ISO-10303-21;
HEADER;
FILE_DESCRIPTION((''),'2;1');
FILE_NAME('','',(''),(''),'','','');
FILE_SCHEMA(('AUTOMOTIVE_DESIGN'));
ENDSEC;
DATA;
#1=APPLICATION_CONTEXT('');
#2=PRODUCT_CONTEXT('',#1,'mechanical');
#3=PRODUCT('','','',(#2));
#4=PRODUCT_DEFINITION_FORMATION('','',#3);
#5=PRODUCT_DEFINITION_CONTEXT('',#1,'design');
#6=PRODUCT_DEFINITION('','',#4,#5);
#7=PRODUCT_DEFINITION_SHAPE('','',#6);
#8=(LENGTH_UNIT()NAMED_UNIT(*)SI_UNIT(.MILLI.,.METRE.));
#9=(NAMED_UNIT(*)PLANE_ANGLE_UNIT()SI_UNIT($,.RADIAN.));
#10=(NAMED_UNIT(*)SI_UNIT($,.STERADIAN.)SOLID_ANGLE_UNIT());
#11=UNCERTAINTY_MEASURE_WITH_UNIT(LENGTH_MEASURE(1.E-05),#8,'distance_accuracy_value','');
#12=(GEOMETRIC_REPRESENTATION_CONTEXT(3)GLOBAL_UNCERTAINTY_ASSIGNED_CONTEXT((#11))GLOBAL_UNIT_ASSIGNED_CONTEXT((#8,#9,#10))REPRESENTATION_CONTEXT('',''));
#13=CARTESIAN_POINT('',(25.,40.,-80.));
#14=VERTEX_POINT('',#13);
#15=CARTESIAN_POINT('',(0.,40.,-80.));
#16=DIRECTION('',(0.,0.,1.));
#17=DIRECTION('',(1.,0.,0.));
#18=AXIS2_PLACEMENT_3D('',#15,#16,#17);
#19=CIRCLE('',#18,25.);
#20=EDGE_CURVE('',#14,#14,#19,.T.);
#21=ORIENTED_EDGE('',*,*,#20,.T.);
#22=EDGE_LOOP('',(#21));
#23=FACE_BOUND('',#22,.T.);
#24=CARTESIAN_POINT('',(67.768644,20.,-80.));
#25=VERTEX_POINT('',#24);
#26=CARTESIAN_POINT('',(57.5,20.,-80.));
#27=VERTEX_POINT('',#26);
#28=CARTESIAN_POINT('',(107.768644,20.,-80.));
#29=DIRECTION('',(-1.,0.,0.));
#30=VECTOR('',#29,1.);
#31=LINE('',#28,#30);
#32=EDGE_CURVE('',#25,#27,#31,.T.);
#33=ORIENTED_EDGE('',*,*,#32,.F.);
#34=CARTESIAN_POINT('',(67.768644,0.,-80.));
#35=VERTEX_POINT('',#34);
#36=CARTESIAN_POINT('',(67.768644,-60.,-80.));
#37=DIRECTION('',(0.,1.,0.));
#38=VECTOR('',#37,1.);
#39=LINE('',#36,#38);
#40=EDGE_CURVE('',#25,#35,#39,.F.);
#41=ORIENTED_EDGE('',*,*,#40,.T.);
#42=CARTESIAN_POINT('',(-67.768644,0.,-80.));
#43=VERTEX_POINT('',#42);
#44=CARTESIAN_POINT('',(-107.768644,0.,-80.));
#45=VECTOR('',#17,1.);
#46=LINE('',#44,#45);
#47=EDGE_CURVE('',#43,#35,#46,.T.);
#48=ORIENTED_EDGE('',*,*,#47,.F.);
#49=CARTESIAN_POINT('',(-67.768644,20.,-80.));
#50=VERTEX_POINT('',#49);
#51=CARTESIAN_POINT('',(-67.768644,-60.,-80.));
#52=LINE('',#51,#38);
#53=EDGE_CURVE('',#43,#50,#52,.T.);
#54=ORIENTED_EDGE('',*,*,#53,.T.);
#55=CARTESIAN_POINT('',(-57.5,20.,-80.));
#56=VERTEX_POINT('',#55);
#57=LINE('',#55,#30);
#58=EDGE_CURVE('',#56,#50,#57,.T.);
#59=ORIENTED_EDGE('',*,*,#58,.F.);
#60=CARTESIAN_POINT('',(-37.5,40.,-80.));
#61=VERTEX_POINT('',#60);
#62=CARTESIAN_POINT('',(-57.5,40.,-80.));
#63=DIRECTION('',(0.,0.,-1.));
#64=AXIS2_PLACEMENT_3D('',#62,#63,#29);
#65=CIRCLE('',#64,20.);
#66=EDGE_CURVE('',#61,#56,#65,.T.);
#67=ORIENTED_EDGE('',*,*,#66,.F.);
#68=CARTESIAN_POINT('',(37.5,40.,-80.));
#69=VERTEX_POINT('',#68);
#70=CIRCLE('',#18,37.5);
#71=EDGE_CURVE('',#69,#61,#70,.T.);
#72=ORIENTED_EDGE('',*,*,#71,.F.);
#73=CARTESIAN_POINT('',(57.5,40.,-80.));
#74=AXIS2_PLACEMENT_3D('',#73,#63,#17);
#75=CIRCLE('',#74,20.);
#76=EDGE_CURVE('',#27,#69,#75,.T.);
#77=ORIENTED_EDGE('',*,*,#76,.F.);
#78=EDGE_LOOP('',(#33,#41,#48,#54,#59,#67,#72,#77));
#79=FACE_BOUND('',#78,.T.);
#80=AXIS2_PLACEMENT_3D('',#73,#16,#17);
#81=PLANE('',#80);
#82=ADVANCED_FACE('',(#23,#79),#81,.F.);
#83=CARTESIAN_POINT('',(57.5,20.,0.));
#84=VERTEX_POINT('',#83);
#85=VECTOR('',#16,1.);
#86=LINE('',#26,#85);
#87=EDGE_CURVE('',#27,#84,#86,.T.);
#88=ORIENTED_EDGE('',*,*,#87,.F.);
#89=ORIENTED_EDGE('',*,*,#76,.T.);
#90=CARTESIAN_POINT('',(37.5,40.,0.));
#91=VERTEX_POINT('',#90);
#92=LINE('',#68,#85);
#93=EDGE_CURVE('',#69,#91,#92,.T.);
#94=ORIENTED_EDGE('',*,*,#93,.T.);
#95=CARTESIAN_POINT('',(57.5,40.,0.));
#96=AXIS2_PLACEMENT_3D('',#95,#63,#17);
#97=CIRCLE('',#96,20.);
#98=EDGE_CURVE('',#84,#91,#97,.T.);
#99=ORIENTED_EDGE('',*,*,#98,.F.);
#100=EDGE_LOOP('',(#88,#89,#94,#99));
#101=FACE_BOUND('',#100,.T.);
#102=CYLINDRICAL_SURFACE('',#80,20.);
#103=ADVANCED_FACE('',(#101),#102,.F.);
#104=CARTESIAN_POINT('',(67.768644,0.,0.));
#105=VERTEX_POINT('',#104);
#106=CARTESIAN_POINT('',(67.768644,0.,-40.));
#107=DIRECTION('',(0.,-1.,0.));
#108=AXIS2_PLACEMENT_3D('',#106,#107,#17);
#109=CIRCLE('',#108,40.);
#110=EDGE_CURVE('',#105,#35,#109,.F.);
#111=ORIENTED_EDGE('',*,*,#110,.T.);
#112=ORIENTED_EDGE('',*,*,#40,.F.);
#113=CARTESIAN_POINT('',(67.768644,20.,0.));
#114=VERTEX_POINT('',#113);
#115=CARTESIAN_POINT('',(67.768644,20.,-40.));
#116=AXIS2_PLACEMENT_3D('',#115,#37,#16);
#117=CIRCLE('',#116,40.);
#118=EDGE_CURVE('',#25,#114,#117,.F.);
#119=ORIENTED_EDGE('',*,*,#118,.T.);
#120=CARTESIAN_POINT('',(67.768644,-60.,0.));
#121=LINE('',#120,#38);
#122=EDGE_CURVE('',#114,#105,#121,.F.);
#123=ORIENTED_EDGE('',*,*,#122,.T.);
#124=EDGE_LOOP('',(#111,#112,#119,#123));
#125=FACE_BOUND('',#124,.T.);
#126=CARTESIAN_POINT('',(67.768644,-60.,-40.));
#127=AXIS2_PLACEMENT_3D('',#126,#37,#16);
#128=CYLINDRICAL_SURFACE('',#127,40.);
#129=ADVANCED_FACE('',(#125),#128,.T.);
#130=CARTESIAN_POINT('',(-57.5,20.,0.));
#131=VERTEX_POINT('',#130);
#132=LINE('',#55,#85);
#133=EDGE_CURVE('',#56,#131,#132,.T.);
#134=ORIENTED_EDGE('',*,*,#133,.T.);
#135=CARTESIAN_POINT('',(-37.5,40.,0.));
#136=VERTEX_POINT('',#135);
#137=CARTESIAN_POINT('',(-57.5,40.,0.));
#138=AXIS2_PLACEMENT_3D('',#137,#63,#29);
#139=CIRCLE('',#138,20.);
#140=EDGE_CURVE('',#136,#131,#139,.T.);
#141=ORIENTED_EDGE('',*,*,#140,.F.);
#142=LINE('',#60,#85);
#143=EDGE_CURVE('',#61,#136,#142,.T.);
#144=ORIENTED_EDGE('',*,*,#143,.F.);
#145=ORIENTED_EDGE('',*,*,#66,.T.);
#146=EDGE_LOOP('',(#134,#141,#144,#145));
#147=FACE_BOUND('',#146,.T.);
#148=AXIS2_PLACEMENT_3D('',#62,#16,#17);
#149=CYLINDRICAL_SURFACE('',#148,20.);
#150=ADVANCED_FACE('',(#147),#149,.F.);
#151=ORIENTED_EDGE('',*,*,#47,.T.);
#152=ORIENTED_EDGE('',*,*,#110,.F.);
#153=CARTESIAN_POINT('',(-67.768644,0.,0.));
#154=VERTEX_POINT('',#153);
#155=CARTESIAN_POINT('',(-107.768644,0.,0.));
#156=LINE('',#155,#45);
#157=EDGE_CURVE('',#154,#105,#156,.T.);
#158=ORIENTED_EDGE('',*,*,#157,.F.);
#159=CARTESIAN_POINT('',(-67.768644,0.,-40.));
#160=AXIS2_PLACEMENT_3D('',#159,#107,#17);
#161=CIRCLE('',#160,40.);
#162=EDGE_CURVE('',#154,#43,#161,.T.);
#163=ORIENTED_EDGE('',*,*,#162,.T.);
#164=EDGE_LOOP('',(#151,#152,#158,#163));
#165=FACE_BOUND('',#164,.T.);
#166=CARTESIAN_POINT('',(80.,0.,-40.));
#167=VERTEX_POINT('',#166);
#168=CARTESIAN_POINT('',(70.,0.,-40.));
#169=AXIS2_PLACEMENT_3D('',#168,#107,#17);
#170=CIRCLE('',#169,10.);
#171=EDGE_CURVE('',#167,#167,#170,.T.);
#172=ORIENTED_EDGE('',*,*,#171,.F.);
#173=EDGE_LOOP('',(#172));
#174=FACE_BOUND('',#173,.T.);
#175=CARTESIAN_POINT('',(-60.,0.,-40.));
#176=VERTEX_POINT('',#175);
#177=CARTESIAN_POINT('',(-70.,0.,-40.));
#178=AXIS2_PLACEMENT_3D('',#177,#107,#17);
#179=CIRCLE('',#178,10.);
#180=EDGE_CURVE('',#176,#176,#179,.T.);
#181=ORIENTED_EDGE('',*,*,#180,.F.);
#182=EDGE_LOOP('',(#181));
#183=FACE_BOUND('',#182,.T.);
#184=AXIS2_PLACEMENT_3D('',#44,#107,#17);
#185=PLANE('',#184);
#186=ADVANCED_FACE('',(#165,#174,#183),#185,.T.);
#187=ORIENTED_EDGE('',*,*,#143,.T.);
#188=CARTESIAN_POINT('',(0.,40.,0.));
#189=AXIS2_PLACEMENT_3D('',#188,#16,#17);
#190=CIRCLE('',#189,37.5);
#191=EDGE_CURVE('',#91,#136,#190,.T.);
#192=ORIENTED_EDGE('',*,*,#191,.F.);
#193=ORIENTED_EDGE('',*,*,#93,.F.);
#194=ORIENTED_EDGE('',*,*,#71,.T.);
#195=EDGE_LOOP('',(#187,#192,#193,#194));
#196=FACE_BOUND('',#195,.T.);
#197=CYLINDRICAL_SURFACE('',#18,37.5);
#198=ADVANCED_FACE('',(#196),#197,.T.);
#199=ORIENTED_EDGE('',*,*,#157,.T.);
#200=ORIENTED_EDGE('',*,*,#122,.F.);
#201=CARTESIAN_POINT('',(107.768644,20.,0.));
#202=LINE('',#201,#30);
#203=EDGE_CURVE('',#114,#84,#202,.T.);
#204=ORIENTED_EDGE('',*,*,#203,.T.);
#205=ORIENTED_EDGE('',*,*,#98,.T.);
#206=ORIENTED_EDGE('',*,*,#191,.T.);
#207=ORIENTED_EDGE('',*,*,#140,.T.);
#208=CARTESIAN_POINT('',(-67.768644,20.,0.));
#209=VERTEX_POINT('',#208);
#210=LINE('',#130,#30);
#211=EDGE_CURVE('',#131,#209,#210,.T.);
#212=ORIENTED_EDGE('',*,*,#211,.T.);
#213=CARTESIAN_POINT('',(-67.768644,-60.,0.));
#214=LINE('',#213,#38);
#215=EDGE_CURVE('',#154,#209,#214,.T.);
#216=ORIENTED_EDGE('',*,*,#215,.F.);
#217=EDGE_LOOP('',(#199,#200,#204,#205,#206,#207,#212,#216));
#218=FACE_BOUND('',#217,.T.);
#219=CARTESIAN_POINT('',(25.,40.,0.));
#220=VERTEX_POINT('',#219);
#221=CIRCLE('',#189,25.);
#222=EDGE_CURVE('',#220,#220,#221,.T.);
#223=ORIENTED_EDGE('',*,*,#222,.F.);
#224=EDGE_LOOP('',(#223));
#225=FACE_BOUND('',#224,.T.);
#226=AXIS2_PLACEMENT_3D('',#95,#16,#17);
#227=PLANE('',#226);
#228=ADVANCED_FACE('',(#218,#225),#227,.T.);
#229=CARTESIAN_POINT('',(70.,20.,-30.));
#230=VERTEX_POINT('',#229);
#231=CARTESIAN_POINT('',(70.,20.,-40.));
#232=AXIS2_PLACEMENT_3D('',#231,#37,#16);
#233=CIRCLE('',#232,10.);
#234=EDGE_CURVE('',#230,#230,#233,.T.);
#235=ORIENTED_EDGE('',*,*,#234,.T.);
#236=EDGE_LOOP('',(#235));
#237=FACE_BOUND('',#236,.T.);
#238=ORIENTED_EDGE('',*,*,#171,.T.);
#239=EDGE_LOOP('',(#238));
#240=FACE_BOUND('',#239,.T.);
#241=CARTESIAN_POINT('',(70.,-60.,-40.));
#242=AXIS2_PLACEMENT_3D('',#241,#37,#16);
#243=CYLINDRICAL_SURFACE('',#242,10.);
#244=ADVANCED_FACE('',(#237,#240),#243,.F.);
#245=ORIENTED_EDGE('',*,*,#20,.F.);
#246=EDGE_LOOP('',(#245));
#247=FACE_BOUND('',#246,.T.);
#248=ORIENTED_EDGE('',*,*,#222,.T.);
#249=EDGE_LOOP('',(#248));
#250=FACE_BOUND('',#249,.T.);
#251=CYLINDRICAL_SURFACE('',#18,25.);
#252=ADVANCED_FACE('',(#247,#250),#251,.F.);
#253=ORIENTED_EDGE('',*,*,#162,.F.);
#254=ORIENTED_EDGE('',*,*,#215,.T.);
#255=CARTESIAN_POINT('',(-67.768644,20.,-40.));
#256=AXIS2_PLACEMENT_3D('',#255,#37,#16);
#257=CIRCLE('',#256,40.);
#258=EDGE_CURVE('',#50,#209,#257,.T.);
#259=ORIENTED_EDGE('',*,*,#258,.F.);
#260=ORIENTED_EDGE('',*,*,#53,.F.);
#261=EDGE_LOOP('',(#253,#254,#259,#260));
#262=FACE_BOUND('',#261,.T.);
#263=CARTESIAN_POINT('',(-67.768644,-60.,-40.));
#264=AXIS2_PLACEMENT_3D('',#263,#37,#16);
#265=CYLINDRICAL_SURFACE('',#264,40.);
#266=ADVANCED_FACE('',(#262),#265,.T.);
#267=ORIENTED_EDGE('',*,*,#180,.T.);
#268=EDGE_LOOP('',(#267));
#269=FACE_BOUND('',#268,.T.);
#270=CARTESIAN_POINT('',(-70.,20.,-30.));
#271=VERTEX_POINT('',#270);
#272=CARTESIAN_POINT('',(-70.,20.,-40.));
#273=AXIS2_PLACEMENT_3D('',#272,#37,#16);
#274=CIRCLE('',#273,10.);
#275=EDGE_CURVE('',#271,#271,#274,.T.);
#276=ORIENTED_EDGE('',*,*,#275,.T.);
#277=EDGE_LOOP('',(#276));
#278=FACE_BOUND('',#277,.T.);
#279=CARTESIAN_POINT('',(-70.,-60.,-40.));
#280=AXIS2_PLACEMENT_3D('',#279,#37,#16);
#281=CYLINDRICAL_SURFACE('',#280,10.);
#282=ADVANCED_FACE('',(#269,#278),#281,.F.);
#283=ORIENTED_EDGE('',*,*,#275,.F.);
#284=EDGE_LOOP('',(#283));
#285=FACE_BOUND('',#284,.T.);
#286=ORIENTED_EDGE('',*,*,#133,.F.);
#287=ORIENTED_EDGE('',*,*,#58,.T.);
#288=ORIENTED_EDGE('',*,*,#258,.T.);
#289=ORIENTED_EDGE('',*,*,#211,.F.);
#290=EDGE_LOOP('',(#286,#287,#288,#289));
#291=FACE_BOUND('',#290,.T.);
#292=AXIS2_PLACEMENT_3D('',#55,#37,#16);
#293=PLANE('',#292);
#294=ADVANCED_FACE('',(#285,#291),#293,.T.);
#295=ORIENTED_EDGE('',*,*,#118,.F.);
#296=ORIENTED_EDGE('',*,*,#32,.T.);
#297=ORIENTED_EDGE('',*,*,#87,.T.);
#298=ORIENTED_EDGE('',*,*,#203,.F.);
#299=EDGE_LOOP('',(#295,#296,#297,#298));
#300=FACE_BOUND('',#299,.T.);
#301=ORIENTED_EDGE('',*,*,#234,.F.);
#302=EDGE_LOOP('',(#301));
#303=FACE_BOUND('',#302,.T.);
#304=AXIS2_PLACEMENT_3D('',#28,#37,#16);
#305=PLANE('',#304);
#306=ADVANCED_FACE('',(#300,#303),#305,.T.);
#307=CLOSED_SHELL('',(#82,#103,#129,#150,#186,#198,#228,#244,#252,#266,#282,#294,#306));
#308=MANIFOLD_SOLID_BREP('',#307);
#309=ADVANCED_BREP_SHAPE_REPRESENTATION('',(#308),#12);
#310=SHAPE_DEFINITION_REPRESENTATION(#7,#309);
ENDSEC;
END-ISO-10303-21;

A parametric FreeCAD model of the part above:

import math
import FreeCAD as App
import Part
import Sketcher

V = App.Vector
Q = App.Units.Quantity

doc = App.newDocument("Part")
body = doc.addObject("PartDesign::Body", "Body")

# Sketch on XY plane
sketch1 = doc.addObject("Sketcher::SketchObject", "Sketch")
body.addObject(sketch1)
sketch1.AttachmentSupport = (doc.XY_Plane, [""])
sketch1.MapMode = "FlatFace"
sketch1.addGeometry(Part.LineSegment(V(-108, 0, 0), V(108, 0, 0)), False)
sketch1.addGeometry(Part.LineSegment(V(108, 0, 0), V(108, 20, 0)), False)
sketch1.addGeometry(Part.LineSegment(V(108, 20, 0), V(58, 20, 0)), False)
sketch1.addGeometry(Part.ArcOfCircle(Part.Circle(V(57, 40, 0), V(0, 0, 1), 20), math.radians(180), math.radians(270)), False)
sketch1.addGeometry(Part.ArcOfCircle(Part.Circle(V(0, 40, 0), V(0, 0, 1), 38), math.radians(0), math.radians(180)), False)
sketch1.addGeometry(Part.ArcOfCircle(Part.Circle(V(-57, 40, 0), V(0, 0, 1), 20), math.radians(-90), math.radians(0)), False)
sketch1.addGeometry(Part.LineSegment(V(-58, 20, 0), V(-108, 20, 0)), False)
sketch1.addGeometry(Part.LineSegment(V(-108, 20, 0), V(-108, 0, 0)), False)
sketch1.addGeometry(Part.Circle(V(0, 40, 0), V(0, 0, 1), 25), False)
sketch1.addConstraint(Sketcher.Constraint("Coincident", 0, 2, 1, 1))
sketch1.addConstraint(Sketcher.Constraint("Coincident", 1, 2, 2, 1))
sketch1.addConstraint(Sketcher.Constraint("Tangent", 2, 2, 3, 2))
sketch1.addConstraint(Sketcher.Constraint("Tangent", 3, 1, 4, 1))
sketch1.addConstraint(Sketcher.Constraint("Tangent", 4, 2, 5, 2))
sketch1.addConstraint(Sketcher.Constraint("Tangent", 5, 1, 6, 1))
sketch1.addConstraint(Sketcher.Constraint("Coincident", 6, 2, 7, 1))
sketch1.addConstraint(Sketcher.Constraint("Coincident", 7, 2, 0, 1))
sketch1.addConstraint(Sketcher.Constraint("Horizontal", 0))
sketch1.addConstraint(Sketcher.Constraint("Vertical", 1))
sketch1.addConstraint(Sketcher.Constraint("Horizontal", 2))
sketch1.addConstraint(Sketcher.Constraint("Horizontal", 6))
sketch1.addConstraint(Sketcher.Constraint("Vertical", 7))
sketch1.addConstraint(Sketcher.Constraint("Coincident", 8, 3, 4, 3))
sketch1.addConstraint(Sketcher.Constraint("Equal", 3, 5))
sketch1.addConstraint(Sketcher.Constraint("Symmetric", 0, 2, 7, 2, -1, 1))
sketch1.addConstraint(Sketcher.Constraint("Symmetric", 3, 3, 5, 3, -2))
sketch1.addConstraint(Sketcher.Constraint("Horizontal", 3, 3, 4, 3))
sketch1.addConstraint(Sketcher.Constraint("Diameter", 8, Q("50 mm")))
sketch1.addConstraint(Sketcher.Constraint("Radius", 3, Q("20 mm")))
sketch1.addConstraint(Sketcher.Constraint("Radius", 4, Q("37.5 mm")))
sketch1.addConstraint(Sketcher.Constraint("DistanceY", 1, 1, 1, 2, Q("20 mm")))
sketch1.addConstraint(Sketcher.Constraint("DistanceX", 0, 1, 0, 2, Q("215.537287 mm")))
pad1 = doc.addObject("PartDesign::Pad", "Pad")
body.addObject(pad1)
pad1.Profile = sketch1
pad1.Length = 80
pad1.Reversed = True

# Sketch on XZ plane
sketch2 = doc.addObject("Sketcher::SketchObject", "Sketch001")
body.addObject(sketch2)
sketch2.AttachmentSupport = (doc.XZ_Plane, [""])
sketch2.MapMode = "FlatFace"
sketch2.AttachmentOffset = App.Placement(V(0, 0, -20), App.Rotation())
sketch2.addGeometry(Part.LineSegment(V(-108, 0, 0), V(-68, 0, 0)), False)
sketch2.addGeometry(Part.ArcOfCircle(Part.Circle(V(-68, -40, 0), V(0, 0, 1), 40), math.radians(90), math.radians(180)), False)
sketch2.addGeometry(Part.LineSegment(V(-108, -40, 0), V(-108, 0, 0)), False)
sketch2.addGeometry(Part.ArcOfCircle(Part.Circle(V(-68, -40, 0), V(0, 0, 1), 40), math.radians(-180), math.radians(-90)), False)
sketch2.addGeometry(Part.LineSegment(V(-68, -80, 0), V(-108, -80, 0)), False)
sketch2.addGeometry(Part.LineSegment(V(-108, -80, 0), V(-108, -40, 0)), False)
sketch2.addGeometry(Part.ArcOfCircle(Part.Circle(V(68, -40, 0), V(0, 0, 1), 40), math.radians(0), math.radians(90)), False)
sketch2.addGeometry(Part.LineSegment(V(68, 0, 0), V(108, 0, 0)), False)
sketch2.addGeometry(Part.LineSegment(V(108, 0, 0), V(108, -40, 0)), False)
sketch2.addGeometry(Part.LineSegment(V(108, -80, 0), V(68, -80, 0)), False)
sketch2.addGeometry(Part.ArcOfCircle(Part.Circle(V(68, -40, 0), V(0, 0, 1), 40), math.radians(-90), math.radians(0)), False)
sketch2.addGeometry(Part.LineSegment(V(108, -40, 0), V(108, -80, 0)), False)
sketch2.addConstraint(Sketcher.Constraint("Tangent", 0, 2, 1, 1))
sketch2.addConstraint(Sketcher.Constraint("Tangent", 1, 2, 2, 1))
sketch2.addConstraint(Sketcher.Constraint("Coincident", 2, 2, 0, 1))
sketch2.addConstraint(Sketcher.Constraint("Tangent", 3, 2, 4, 1))
sketch2.addConstraint(Sketcher.Constraint("Coincident", 4, 2, 5, 1))
sketch2.addConstraint(Sketcher.Constraint("Tangent", 5, 2, 3, 1))
sketch2.addConstraint(Sketcher.Constraint("Tangent", 6, 2, 7, 1))
sketch2.addConstraint(Sketcher.Constraint("Coincident", 7, 2, 8, 1))
sketch2.addConstraint(Sketcher.Constraint("Tangent", 8, 2, 6, 1))
sketch2.addConstraint(Sketcher.Constraint("Tangent", 9, 2, 10, 1))
sketch2.addConstraint(Sketcher.Constraint("Tangent", 10, 2, 11, 1))
sketch2.addConstraint(Sketcher.Constraint("Coincident", 11, 2, 9, 1))
sketch2.addConstraint(Sketcher.Constraint("Horizontal", 0))
sketch2.addConstraint(Sketcher.Constraint("Vertical", 2))
sketch2.addConstraint(Sketcher.Constraint("Horizontal", 4))
sketch2.addConstraint(Sketcher.Constraint("Vertical", 5))
sketch2.addConstraint(Sketcher.Constraint("Horizontal", 7))
sketch2.addConstraint(Sketcher.Constraint("Vertical", 8))
sketch2.addConstraint(Sketcher.Constraint("Horizontal", 9))
sketch2.addConstraint(Sketcher.Constraint("Vertical", 11))
sketch2.addConstraint(Sketcher.Constraint("Coincident", 3, 3, 1, 3))
sketch2.addConstraint(Sketcher.Constraint("Coincident", 10, 3, 6, 3))
sketch2.addConstraint(Sketcher.Constraint("Equal", 1, 3))
sketch2.addConstraint(Sketcher.Constraint("Equal", 3, 6))
sketch2.addConstraint(Sketcher.Constraint("Equal", 6, 10))
sketch2.addConstraint(Sketcher.Constraint("Symmetric", 0, 2, 6, 2, -1, 1))
sketch2.addConstraint(Sketcher.Constraint("PointOnObject", 0, 2, -1))
sketch2.addConstraint(Sketcher.Constraint("Radius", 1, Q("40 mm")))
sketch2.addConstraint(Sketcher.Constraint("DistanceX", 1, 3, -1, 1, Q("67.768644 mm")))
pocket1 = doc.addObject("PartDesign::Pocket", "Pocket")
body.addObject(pocket1)
pocket1.Profile = sketch2
pocket1.Length = 80
pocket1.Reversed = True

# Sketch on XZ plane
sketch3 = doc.addObject("Sketcher::SketchObject", "Sketch002")
body.addObject(sketch3)
sketch3.AttachmentSupport = (doc.XZ_Plane, [""])
sketch3.MapMode = "FlatFace"
sketch3.AttachmentOffset = App.Placement(V(0, 0, -20), App.Rotation())
sketch3.addGeometry(Part.Circle(V(70, -40, 0), V(0, 0, 1), 10), False)
sketch3.addGeometry(Part.Circle(V(-70, -40, 0), V(0, 0, 1), 10), False)
sketch3.addConstraint(Sketcher.Constraint("Equal", 0, 1))
sketch3.addConstraint(Sketcher.Constraint("Symmetric", 0, 3, 1, 3, -2))
sketch3.addConstraint(Sketcher.Constraint("Diameter", 0, Q("20 mm")))
sketch3.addConstraint(Sketcher.Constraint("DistanceX", -1, 1, 0, 3, Q("70 mm")))
sketch3.addConstraint(Sketcher.Constraint("DistanceY", 0, 3, -1, 1, Q("40 mm")))
pocket2 = doc.addObject("PartDesign::Pocket", "Pocket001")
body.addObject(pocket2)
pocket2.Profile = sketch3
pocket2.Length = 80
pocket2.Reversed = True

doc.recompute()
